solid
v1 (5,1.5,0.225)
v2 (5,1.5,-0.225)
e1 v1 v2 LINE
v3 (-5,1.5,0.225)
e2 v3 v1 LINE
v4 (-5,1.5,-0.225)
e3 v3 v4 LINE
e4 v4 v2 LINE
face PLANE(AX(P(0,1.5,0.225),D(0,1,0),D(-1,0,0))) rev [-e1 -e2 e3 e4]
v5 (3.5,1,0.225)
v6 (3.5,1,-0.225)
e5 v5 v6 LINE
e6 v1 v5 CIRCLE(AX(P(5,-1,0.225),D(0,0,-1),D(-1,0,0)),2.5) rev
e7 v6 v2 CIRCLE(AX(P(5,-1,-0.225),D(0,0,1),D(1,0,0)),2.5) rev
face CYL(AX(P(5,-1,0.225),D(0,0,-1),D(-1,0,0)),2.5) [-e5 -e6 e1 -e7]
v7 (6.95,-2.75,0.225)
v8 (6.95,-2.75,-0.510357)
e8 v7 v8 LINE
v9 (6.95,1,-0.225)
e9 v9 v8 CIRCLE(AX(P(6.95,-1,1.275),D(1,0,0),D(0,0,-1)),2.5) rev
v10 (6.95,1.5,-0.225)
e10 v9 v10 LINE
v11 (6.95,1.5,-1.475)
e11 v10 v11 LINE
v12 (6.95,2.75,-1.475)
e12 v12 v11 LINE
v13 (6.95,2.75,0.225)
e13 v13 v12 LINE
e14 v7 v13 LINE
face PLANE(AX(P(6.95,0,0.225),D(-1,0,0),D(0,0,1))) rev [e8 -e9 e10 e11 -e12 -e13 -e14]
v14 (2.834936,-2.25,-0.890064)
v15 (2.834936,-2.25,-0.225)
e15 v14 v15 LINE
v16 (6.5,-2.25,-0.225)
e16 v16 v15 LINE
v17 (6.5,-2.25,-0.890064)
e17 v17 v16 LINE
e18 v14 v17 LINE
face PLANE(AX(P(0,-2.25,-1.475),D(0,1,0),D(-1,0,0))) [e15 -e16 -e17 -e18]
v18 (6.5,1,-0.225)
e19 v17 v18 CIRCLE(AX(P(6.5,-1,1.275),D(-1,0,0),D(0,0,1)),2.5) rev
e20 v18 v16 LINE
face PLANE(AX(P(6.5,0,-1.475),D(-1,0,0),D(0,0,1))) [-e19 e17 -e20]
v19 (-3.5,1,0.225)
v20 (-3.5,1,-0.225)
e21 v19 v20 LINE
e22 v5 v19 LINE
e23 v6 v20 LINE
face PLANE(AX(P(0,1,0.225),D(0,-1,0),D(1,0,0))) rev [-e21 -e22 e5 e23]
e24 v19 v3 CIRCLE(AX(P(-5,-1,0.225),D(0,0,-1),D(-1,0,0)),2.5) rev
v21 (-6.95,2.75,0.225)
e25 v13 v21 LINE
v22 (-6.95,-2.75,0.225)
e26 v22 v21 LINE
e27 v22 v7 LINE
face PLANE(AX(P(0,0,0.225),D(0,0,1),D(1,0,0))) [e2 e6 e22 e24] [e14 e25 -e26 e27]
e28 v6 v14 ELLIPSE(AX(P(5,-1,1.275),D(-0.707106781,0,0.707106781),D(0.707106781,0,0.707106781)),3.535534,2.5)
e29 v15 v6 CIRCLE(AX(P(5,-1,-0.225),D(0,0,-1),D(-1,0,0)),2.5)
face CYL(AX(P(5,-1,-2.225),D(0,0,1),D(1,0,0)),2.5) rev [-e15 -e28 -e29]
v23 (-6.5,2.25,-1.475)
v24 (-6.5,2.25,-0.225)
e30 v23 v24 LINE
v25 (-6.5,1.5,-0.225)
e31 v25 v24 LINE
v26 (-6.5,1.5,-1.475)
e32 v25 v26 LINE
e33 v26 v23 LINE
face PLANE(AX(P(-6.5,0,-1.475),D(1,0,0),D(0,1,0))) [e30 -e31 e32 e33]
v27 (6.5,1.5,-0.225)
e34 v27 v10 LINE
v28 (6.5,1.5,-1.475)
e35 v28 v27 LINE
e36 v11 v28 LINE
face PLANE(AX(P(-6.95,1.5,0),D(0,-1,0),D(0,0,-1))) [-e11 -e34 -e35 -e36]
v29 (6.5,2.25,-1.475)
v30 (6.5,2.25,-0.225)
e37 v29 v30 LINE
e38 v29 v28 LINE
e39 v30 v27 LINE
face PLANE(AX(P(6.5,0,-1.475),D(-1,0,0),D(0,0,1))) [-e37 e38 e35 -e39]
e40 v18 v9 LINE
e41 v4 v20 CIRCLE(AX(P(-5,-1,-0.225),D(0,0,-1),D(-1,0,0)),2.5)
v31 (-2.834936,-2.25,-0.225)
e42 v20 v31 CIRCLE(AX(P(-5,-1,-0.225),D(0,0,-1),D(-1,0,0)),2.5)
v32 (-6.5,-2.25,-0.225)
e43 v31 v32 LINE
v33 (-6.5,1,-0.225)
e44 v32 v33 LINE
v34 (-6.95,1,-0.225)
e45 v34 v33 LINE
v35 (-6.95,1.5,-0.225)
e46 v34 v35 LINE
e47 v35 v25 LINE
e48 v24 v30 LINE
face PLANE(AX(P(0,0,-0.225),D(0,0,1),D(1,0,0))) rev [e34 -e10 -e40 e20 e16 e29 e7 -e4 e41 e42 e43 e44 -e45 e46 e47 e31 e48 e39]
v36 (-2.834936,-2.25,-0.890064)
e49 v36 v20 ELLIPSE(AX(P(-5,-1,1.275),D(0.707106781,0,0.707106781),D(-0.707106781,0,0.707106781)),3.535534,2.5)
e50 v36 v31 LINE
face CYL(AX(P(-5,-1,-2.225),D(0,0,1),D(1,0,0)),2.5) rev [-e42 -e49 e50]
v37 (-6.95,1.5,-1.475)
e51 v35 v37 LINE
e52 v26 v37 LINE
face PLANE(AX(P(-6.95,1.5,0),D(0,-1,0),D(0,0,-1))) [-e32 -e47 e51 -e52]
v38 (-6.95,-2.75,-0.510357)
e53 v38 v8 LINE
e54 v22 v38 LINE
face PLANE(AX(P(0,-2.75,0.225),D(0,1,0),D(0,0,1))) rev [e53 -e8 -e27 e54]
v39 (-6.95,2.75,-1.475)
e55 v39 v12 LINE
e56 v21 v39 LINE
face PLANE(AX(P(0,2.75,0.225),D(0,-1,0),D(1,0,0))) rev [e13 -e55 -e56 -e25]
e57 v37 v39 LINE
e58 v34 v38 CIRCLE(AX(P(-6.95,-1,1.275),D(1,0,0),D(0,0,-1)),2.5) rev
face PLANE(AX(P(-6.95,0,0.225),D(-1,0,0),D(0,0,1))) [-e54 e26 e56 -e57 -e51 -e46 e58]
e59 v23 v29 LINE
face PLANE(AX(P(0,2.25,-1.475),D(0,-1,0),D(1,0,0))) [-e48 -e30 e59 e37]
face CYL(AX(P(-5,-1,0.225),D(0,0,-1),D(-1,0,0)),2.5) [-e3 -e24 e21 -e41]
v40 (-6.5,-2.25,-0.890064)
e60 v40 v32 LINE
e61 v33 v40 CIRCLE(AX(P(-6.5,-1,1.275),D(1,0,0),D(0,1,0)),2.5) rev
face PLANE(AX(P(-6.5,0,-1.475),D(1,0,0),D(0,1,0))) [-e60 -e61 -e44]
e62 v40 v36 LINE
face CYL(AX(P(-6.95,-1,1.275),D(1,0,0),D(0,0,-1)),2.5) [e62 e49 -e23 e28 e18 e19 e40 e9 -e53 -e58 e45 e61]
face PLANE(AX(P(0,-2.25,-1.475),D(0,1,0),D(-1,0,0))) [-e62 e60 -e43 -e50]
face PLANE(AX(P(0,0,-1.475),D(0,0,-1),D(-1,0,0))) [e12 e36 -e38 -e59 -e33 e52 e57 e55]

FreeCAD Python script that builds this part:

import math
import FreeCAD as App
import Part
import Sketcher


def add_polygon(sketch, points):
    """Adds a closed chain of lines whose ends are joined by coincident constraints."""
    first, n = sketch.GeometryCount, len(points)
    for a, b in zip(points, points[1:] + points[:1]):
        sketch.addGeometry(Part.LineSegment(App.Vector(*a, 0), App.Vector(*b, 0)), False)
    for i in range(n):
        sketch.addConstraint(Sketcher.Constraint("Coincident", first + i, 2, first + (i + 1) % n, 1))

doc = App.newDocument("Part")
body = doc.addObject("PartDesign::Body", "Body")

# Sketch on XY plane
sketch1 = body.newObject("Sketcher::SketchObject", "Sketch")
sketch1.AttachmentSupport = (doc.getObject("XY_Plane"), [""])
sketch1.MapMode = "FlatFace"
add_polygon(sketch1, [(7, 3), (-7, 3), (-7, -3), (7, -3)])  # lines 0-3
sketch1.addConstraint(Sketcher.Constraint("Horizontal", 0))
sketch1.addConstraint(Sketcher.Constraint("Vertical", 1))
sketch1.addConstraint(Sketcher.Constraint("Horizontal", 2))
sketch1.addConstraint(Sketcher.Constraint("Vertical", 3))
sketch1.addConstraint(Sketcher.Constraint("Symmetric", 0, 2, 2, 2, -1, 1))
sketch1.addConstraint(Sketcher.Constraint("DistanceX", 0, 2, 0, 1, 13.9))
sketch1.addConstraint(Sketcher.Constraint("DistanceY", 1, 2, 1, 1, 5.5))
pad1 = body.newObject("PartDesign::Pad", "Pad")
pad1.Profile = sketch1
pad1.Length = 0.45
pad1.Midplane = True

# Sketch on XY plane
sketch2 = body.newObject("Sketcher::SketchObject", "Sketch001")
sketch2.AttachmentSupport = (doc.getObject("XY_Plane"), [""])
sketch2.MapMode = "FlatFace"
sketch2.AttachmentOffset = App.Placement(App.Vector(0, 0, -0.225), App.Rotation())
add_polygon(sketch2, [(7, -2.8), (-7, -2.8), (-7, 2.8), (7, 2.8)])  # lines 0-3
add_polygon(sketch2, [(6.5, -2.2), (6.5, 2.2), (-6.5, 2.2), (-6.5, -2.2)])  # lines 4-7
sketch2.addConstraint(Sketcher.Constraint("Horizontal", 0))
sketch2.addConstraint(Sketcher.Constraint("Vertical", 1))
sketch2.addConstraint(Sketcher.Constraint("Horizontal", 2))
sketch2.addConstraint(Sketcher.Constraint("Vertical", 3))
sketch2.addConstraint(Sketcher.Constraint("Vertical", 4))
sketch2.addConstraint(Sketcher.Constraint("Horizontal", 5))
sketch2.addConstraint(Sketcher.Constraint("Vertical", 6))
sketch2.addConstraint(Sketcher.Constraint("Horizontal", 7))
sketch2.addConstraint(Sketcher.Constraint("Symmetric", 0, 2, 2, 2, -1, 1))
sketch2.addConstraint(Sketcher.Constraint("Symmetric", 4, 2, 6, 2, -1, 1))
sketch2.addConstraint(Sketcher.Constraint("DistanceX", 5, 2, 5, 1, 13.0))
sketch2.addConstraint(Sketcher.Constraint("DistanceX", 0, 2, 0, 1, 13.9))
sketch2.addConstraint(Sketcher.Constraint("DistanceY", 1, 1, 1, 2, 5.5))
sketch2.addConstraint(Sketcher.Constraint("DistanceY", 4, 1, 4, 2, 4.5))
pad2 = body.newObject("PartDesign::Pad", "Pad001")
pad2.Profile = sketch2
pad2.Length = 1.25
pad2.Reversed = True

# Sketch on XY plane
sketch3 = body.newObject("Sketcher::SketchObject", "Sketch002")
sketch3.AttachmentSupport = (doc.getObject("XY_Plane"), [""])
sketch3.MapMode = "FlatFace"
sketch3.AttachmentOffset = App.Placement(App.Vector(0, 0, -0.225), App.Rotation())
sketch3.addGeometry(Part.ArcOfCircle(Part.Circle(App.Vector(5, -1, 0), App.Vector(0, 0, 1), 2.5), math.radians(90), math.radians(210)), False)
sketch3.addGeometry(Part.LineSegment(App.Vector(2.8, -2.2, 0), App.Vector(-2.8, -2.2, 0)), False)
sketch3.addGeometry(Part.ArcOfCircle(Part.Circle(App.Vector(-5, -1, 0), App.Vector(0, 0, 1), 2.5), math.radians(-30), math.radians(90)), False)
sketch3.addGeometry(Part.LineSegment(App.Vector(-5, 1.5, 0), App.Vector(5, 1.5, 0)), False)
sketch3.addConstraint(Sketcher.Constraint("Coincident", 0, 2, 1, 1))
sketch3.addConstraint(Sketcher.Constraint("Coincident", 1, 2, 2, 1))
sketch3.addConstraint(Sketcher.Constraint("Tangent", 2, 2, 3, 1))
sketch3.addConstraint(Sketcher.Constraint("Tangent", 3, 2, 0, 1))
sketch3.addConstraint(Sketcher.Constraint("Horizontal", 1))
sketch3.addConstraint(Sketcher.Constraint("Horizontal", 3))
sketch3.addConstraint(Sketcher.Constraint("Equal", 0, 2))
sketch3.addConstraint(Sketcher.Constraint("Radius", 0, 2.5))
sketch3.addConstraint(Sketcher.Constraint("DistanceX", 3, 1, 3, 2, 10.0))
sketch3.addConstraint(Sketcher.Constraint("DistanceX", -1, 1, 0, 3, 5.0))
sketch3.addConstraint(Sketcher.Constraint("DistanceY", 0, 3, -1, 1, 1.0))
sketch3.addConstraint(Sketcher.Constraint("DistanceY", 0, 2, -1, 1, 2.25))
pad3 = body.newObject("PartDesign::Pad", "Pad002")
pad3.Profile = sketch3
pad3.Length = 2
pad3.Reversed = True

# Sketch on XY plane
sketch4 = body.newObject("Sketcher::SketchObject", "Sketch003")
sketch4.AttachmentSupport = (doc.getObject("XY_Plane"), [""])
sketch4.MapMode = "FlatFace"
sketch4.AttachmentOffset = App.Placement(App.Vector(0, 0, -2.225), App.Rotation())
sketch4.addGeometry(Part.LineSegment(App.Vector(3.5, 1, 0), App.Vector(-3.5, 1, 0)), False)
sketch4.addGeometry(Part.ArcOfCircle(Part.Circle(App.Vector(-5, -1, 0), App.Vector(0, 0, 1), 2.5), math.radians(53), math.radians(90)), False)
sketch4.addGeometry(Part.LineSegment(App.Vector(-5, 1.5, 0), App.Vector(5, 1.5, 0)), False)
sketch4.addGeometry(Part.ArcOfCircle(Part.Circle(App.Vector(5, -1, 0), App.Vector(0, 0, 1), 2.5), math.radians(90), math.radians(127)), False)
sketch4.addConstraint(Sketcher.Constraint("Coincident", 0, 2, 1, 1))
sketch4.addConstraint(Sketcher.Constraint("Tangent", 1, 2, 2, 1))
sketch4.addConstraint(Sketcher.Constraint("Tangent", 2, 2, 3, 1))
sketch4.addConstraint(Sketcher.Constraint("Coincident", 3, 2, 0, 1))
sketch4.addConstraint(Sketcher.Constraint("Horizontal", 0))
sketch4.addConstraint(Sketcher.Constraint("Horizontal", 2))
sketch4.addConstraint(Sketcher.Constraint("Equal", 1, 3))
sketch4.addConstraint(Sketcher.Constraint("Radius", 1, 2.5))
sketch4.addConstraint(Sketcher.Constraint("DistanceX", 0, 2, 0, 1, 7.0))
sketch4.addConstraint(Sketcher.Constraint("DistanceX", 2, 1, 2, 2, 10.0))
sketch4.addConstraint(Sketcher.Constraint("DistanceX", 1, 3, -1, 1, 5.0))
sketch4.addConstraint(Sketcher.Constraint("DistanceY", 1, 3, -1, 1, 1.0))
pocket1 = body.newObject("PartDesign::Pocket", "Pocket")
pocket1.Profile = sketch4
pocket1.Type = "ThroughAll"
pocket1.Reversed = True

# Sketch on YZ plane
sketch5 = body.newObject("Sketcher::SketchObject", "Sketch004")
sketch5.AttachmentSupport = (doc.getObject("YZ_Plane"), [""])
sketch5.MapMode = "FlatFace"
sketch5.addGeometry(Part.LineSegment(App.Vector(1.5, -3.7, 0), App.Vector(1.5, -0.2, 0)), False)
sketch5.addGeometry(Part.LineSegment(App.Vector(1.5, -0.2, 0), App.Vector(1, -0.2, 0)), False)
sketch5.addGeometry(Part.ArcOfCircle(Part.Circle(App.Vector(-1, 1.3, 0), App.Vector(0, 0, 1), 2.5), math.radians(180), math.radians(323)), False)
sketch5.addGeometry(Part.LineSegment(App.Vector(-3.5, 1.3, 0), App.Vector(-3.5, -3.7, 0)), False)
sketch5.addGeometry(Part.LineSegment(App.Vector(-3.5, -3.7, 0), App.Vector(1.5, -3.7, 0)), False)
sketch5.addConstraint(Sketcher.Constraint("Coincident", 0, 2, 1, 1))
sketch5.addConstraint(Sketcher.Constraint("Coincident", 1, 2, 2, 2))
sketch5.addConstraint(Sketcher.Constraint("Tangent", 2, 1, 3, 1))
sketch5.addConstraint(Sketcher.Constraint("Coincident", 3, 2, 4, 1))
sketch5.addConstraint(Sketcher.Constraint("Coincident", 4, 2, 0, 1))
sketch5.addConstraint(Sketcher.Constraint("Vertical", 0))
sketch5.addConstraint(Sketcher.Constraint("Horizontal", 1))
sketch5.addConstraint(Sketcher.Constraint("Vertical", 3))
sketch5.addConstraint(Sketcher.Constraint("Horizontal", 4))
sketch5.addConstraint(Sketcher.Constraint("Equal", 4, 3))
sketch5.addConstraint(Sketcher.Constraint("Radius", 2, 2.5))
sketch5.addConstraint(Sketcher.Constraint("DistanceX", 4, 1, 4, 2, 5.0))
sketch5.addConstraint(Sketcher.Constraint("DistanceX", 1, 2, 1, 1, 0.5))
sketch5.addConstraint(Sketcher.Constraint("DistanceX", 2, 3, -1, 1, 1.0))
sketch5.addConstraint(Sketcher.Constraint("DistanceY", -1, 1, 2, 3, 1.275))
pocket2 = body.newObject("PartDesign::Pocket", "Pocket001")
pocket2.Profile = sketch5
pocket2.Type = "ThroughAll"
pocket2.Midplane = True

doc.recompute()
